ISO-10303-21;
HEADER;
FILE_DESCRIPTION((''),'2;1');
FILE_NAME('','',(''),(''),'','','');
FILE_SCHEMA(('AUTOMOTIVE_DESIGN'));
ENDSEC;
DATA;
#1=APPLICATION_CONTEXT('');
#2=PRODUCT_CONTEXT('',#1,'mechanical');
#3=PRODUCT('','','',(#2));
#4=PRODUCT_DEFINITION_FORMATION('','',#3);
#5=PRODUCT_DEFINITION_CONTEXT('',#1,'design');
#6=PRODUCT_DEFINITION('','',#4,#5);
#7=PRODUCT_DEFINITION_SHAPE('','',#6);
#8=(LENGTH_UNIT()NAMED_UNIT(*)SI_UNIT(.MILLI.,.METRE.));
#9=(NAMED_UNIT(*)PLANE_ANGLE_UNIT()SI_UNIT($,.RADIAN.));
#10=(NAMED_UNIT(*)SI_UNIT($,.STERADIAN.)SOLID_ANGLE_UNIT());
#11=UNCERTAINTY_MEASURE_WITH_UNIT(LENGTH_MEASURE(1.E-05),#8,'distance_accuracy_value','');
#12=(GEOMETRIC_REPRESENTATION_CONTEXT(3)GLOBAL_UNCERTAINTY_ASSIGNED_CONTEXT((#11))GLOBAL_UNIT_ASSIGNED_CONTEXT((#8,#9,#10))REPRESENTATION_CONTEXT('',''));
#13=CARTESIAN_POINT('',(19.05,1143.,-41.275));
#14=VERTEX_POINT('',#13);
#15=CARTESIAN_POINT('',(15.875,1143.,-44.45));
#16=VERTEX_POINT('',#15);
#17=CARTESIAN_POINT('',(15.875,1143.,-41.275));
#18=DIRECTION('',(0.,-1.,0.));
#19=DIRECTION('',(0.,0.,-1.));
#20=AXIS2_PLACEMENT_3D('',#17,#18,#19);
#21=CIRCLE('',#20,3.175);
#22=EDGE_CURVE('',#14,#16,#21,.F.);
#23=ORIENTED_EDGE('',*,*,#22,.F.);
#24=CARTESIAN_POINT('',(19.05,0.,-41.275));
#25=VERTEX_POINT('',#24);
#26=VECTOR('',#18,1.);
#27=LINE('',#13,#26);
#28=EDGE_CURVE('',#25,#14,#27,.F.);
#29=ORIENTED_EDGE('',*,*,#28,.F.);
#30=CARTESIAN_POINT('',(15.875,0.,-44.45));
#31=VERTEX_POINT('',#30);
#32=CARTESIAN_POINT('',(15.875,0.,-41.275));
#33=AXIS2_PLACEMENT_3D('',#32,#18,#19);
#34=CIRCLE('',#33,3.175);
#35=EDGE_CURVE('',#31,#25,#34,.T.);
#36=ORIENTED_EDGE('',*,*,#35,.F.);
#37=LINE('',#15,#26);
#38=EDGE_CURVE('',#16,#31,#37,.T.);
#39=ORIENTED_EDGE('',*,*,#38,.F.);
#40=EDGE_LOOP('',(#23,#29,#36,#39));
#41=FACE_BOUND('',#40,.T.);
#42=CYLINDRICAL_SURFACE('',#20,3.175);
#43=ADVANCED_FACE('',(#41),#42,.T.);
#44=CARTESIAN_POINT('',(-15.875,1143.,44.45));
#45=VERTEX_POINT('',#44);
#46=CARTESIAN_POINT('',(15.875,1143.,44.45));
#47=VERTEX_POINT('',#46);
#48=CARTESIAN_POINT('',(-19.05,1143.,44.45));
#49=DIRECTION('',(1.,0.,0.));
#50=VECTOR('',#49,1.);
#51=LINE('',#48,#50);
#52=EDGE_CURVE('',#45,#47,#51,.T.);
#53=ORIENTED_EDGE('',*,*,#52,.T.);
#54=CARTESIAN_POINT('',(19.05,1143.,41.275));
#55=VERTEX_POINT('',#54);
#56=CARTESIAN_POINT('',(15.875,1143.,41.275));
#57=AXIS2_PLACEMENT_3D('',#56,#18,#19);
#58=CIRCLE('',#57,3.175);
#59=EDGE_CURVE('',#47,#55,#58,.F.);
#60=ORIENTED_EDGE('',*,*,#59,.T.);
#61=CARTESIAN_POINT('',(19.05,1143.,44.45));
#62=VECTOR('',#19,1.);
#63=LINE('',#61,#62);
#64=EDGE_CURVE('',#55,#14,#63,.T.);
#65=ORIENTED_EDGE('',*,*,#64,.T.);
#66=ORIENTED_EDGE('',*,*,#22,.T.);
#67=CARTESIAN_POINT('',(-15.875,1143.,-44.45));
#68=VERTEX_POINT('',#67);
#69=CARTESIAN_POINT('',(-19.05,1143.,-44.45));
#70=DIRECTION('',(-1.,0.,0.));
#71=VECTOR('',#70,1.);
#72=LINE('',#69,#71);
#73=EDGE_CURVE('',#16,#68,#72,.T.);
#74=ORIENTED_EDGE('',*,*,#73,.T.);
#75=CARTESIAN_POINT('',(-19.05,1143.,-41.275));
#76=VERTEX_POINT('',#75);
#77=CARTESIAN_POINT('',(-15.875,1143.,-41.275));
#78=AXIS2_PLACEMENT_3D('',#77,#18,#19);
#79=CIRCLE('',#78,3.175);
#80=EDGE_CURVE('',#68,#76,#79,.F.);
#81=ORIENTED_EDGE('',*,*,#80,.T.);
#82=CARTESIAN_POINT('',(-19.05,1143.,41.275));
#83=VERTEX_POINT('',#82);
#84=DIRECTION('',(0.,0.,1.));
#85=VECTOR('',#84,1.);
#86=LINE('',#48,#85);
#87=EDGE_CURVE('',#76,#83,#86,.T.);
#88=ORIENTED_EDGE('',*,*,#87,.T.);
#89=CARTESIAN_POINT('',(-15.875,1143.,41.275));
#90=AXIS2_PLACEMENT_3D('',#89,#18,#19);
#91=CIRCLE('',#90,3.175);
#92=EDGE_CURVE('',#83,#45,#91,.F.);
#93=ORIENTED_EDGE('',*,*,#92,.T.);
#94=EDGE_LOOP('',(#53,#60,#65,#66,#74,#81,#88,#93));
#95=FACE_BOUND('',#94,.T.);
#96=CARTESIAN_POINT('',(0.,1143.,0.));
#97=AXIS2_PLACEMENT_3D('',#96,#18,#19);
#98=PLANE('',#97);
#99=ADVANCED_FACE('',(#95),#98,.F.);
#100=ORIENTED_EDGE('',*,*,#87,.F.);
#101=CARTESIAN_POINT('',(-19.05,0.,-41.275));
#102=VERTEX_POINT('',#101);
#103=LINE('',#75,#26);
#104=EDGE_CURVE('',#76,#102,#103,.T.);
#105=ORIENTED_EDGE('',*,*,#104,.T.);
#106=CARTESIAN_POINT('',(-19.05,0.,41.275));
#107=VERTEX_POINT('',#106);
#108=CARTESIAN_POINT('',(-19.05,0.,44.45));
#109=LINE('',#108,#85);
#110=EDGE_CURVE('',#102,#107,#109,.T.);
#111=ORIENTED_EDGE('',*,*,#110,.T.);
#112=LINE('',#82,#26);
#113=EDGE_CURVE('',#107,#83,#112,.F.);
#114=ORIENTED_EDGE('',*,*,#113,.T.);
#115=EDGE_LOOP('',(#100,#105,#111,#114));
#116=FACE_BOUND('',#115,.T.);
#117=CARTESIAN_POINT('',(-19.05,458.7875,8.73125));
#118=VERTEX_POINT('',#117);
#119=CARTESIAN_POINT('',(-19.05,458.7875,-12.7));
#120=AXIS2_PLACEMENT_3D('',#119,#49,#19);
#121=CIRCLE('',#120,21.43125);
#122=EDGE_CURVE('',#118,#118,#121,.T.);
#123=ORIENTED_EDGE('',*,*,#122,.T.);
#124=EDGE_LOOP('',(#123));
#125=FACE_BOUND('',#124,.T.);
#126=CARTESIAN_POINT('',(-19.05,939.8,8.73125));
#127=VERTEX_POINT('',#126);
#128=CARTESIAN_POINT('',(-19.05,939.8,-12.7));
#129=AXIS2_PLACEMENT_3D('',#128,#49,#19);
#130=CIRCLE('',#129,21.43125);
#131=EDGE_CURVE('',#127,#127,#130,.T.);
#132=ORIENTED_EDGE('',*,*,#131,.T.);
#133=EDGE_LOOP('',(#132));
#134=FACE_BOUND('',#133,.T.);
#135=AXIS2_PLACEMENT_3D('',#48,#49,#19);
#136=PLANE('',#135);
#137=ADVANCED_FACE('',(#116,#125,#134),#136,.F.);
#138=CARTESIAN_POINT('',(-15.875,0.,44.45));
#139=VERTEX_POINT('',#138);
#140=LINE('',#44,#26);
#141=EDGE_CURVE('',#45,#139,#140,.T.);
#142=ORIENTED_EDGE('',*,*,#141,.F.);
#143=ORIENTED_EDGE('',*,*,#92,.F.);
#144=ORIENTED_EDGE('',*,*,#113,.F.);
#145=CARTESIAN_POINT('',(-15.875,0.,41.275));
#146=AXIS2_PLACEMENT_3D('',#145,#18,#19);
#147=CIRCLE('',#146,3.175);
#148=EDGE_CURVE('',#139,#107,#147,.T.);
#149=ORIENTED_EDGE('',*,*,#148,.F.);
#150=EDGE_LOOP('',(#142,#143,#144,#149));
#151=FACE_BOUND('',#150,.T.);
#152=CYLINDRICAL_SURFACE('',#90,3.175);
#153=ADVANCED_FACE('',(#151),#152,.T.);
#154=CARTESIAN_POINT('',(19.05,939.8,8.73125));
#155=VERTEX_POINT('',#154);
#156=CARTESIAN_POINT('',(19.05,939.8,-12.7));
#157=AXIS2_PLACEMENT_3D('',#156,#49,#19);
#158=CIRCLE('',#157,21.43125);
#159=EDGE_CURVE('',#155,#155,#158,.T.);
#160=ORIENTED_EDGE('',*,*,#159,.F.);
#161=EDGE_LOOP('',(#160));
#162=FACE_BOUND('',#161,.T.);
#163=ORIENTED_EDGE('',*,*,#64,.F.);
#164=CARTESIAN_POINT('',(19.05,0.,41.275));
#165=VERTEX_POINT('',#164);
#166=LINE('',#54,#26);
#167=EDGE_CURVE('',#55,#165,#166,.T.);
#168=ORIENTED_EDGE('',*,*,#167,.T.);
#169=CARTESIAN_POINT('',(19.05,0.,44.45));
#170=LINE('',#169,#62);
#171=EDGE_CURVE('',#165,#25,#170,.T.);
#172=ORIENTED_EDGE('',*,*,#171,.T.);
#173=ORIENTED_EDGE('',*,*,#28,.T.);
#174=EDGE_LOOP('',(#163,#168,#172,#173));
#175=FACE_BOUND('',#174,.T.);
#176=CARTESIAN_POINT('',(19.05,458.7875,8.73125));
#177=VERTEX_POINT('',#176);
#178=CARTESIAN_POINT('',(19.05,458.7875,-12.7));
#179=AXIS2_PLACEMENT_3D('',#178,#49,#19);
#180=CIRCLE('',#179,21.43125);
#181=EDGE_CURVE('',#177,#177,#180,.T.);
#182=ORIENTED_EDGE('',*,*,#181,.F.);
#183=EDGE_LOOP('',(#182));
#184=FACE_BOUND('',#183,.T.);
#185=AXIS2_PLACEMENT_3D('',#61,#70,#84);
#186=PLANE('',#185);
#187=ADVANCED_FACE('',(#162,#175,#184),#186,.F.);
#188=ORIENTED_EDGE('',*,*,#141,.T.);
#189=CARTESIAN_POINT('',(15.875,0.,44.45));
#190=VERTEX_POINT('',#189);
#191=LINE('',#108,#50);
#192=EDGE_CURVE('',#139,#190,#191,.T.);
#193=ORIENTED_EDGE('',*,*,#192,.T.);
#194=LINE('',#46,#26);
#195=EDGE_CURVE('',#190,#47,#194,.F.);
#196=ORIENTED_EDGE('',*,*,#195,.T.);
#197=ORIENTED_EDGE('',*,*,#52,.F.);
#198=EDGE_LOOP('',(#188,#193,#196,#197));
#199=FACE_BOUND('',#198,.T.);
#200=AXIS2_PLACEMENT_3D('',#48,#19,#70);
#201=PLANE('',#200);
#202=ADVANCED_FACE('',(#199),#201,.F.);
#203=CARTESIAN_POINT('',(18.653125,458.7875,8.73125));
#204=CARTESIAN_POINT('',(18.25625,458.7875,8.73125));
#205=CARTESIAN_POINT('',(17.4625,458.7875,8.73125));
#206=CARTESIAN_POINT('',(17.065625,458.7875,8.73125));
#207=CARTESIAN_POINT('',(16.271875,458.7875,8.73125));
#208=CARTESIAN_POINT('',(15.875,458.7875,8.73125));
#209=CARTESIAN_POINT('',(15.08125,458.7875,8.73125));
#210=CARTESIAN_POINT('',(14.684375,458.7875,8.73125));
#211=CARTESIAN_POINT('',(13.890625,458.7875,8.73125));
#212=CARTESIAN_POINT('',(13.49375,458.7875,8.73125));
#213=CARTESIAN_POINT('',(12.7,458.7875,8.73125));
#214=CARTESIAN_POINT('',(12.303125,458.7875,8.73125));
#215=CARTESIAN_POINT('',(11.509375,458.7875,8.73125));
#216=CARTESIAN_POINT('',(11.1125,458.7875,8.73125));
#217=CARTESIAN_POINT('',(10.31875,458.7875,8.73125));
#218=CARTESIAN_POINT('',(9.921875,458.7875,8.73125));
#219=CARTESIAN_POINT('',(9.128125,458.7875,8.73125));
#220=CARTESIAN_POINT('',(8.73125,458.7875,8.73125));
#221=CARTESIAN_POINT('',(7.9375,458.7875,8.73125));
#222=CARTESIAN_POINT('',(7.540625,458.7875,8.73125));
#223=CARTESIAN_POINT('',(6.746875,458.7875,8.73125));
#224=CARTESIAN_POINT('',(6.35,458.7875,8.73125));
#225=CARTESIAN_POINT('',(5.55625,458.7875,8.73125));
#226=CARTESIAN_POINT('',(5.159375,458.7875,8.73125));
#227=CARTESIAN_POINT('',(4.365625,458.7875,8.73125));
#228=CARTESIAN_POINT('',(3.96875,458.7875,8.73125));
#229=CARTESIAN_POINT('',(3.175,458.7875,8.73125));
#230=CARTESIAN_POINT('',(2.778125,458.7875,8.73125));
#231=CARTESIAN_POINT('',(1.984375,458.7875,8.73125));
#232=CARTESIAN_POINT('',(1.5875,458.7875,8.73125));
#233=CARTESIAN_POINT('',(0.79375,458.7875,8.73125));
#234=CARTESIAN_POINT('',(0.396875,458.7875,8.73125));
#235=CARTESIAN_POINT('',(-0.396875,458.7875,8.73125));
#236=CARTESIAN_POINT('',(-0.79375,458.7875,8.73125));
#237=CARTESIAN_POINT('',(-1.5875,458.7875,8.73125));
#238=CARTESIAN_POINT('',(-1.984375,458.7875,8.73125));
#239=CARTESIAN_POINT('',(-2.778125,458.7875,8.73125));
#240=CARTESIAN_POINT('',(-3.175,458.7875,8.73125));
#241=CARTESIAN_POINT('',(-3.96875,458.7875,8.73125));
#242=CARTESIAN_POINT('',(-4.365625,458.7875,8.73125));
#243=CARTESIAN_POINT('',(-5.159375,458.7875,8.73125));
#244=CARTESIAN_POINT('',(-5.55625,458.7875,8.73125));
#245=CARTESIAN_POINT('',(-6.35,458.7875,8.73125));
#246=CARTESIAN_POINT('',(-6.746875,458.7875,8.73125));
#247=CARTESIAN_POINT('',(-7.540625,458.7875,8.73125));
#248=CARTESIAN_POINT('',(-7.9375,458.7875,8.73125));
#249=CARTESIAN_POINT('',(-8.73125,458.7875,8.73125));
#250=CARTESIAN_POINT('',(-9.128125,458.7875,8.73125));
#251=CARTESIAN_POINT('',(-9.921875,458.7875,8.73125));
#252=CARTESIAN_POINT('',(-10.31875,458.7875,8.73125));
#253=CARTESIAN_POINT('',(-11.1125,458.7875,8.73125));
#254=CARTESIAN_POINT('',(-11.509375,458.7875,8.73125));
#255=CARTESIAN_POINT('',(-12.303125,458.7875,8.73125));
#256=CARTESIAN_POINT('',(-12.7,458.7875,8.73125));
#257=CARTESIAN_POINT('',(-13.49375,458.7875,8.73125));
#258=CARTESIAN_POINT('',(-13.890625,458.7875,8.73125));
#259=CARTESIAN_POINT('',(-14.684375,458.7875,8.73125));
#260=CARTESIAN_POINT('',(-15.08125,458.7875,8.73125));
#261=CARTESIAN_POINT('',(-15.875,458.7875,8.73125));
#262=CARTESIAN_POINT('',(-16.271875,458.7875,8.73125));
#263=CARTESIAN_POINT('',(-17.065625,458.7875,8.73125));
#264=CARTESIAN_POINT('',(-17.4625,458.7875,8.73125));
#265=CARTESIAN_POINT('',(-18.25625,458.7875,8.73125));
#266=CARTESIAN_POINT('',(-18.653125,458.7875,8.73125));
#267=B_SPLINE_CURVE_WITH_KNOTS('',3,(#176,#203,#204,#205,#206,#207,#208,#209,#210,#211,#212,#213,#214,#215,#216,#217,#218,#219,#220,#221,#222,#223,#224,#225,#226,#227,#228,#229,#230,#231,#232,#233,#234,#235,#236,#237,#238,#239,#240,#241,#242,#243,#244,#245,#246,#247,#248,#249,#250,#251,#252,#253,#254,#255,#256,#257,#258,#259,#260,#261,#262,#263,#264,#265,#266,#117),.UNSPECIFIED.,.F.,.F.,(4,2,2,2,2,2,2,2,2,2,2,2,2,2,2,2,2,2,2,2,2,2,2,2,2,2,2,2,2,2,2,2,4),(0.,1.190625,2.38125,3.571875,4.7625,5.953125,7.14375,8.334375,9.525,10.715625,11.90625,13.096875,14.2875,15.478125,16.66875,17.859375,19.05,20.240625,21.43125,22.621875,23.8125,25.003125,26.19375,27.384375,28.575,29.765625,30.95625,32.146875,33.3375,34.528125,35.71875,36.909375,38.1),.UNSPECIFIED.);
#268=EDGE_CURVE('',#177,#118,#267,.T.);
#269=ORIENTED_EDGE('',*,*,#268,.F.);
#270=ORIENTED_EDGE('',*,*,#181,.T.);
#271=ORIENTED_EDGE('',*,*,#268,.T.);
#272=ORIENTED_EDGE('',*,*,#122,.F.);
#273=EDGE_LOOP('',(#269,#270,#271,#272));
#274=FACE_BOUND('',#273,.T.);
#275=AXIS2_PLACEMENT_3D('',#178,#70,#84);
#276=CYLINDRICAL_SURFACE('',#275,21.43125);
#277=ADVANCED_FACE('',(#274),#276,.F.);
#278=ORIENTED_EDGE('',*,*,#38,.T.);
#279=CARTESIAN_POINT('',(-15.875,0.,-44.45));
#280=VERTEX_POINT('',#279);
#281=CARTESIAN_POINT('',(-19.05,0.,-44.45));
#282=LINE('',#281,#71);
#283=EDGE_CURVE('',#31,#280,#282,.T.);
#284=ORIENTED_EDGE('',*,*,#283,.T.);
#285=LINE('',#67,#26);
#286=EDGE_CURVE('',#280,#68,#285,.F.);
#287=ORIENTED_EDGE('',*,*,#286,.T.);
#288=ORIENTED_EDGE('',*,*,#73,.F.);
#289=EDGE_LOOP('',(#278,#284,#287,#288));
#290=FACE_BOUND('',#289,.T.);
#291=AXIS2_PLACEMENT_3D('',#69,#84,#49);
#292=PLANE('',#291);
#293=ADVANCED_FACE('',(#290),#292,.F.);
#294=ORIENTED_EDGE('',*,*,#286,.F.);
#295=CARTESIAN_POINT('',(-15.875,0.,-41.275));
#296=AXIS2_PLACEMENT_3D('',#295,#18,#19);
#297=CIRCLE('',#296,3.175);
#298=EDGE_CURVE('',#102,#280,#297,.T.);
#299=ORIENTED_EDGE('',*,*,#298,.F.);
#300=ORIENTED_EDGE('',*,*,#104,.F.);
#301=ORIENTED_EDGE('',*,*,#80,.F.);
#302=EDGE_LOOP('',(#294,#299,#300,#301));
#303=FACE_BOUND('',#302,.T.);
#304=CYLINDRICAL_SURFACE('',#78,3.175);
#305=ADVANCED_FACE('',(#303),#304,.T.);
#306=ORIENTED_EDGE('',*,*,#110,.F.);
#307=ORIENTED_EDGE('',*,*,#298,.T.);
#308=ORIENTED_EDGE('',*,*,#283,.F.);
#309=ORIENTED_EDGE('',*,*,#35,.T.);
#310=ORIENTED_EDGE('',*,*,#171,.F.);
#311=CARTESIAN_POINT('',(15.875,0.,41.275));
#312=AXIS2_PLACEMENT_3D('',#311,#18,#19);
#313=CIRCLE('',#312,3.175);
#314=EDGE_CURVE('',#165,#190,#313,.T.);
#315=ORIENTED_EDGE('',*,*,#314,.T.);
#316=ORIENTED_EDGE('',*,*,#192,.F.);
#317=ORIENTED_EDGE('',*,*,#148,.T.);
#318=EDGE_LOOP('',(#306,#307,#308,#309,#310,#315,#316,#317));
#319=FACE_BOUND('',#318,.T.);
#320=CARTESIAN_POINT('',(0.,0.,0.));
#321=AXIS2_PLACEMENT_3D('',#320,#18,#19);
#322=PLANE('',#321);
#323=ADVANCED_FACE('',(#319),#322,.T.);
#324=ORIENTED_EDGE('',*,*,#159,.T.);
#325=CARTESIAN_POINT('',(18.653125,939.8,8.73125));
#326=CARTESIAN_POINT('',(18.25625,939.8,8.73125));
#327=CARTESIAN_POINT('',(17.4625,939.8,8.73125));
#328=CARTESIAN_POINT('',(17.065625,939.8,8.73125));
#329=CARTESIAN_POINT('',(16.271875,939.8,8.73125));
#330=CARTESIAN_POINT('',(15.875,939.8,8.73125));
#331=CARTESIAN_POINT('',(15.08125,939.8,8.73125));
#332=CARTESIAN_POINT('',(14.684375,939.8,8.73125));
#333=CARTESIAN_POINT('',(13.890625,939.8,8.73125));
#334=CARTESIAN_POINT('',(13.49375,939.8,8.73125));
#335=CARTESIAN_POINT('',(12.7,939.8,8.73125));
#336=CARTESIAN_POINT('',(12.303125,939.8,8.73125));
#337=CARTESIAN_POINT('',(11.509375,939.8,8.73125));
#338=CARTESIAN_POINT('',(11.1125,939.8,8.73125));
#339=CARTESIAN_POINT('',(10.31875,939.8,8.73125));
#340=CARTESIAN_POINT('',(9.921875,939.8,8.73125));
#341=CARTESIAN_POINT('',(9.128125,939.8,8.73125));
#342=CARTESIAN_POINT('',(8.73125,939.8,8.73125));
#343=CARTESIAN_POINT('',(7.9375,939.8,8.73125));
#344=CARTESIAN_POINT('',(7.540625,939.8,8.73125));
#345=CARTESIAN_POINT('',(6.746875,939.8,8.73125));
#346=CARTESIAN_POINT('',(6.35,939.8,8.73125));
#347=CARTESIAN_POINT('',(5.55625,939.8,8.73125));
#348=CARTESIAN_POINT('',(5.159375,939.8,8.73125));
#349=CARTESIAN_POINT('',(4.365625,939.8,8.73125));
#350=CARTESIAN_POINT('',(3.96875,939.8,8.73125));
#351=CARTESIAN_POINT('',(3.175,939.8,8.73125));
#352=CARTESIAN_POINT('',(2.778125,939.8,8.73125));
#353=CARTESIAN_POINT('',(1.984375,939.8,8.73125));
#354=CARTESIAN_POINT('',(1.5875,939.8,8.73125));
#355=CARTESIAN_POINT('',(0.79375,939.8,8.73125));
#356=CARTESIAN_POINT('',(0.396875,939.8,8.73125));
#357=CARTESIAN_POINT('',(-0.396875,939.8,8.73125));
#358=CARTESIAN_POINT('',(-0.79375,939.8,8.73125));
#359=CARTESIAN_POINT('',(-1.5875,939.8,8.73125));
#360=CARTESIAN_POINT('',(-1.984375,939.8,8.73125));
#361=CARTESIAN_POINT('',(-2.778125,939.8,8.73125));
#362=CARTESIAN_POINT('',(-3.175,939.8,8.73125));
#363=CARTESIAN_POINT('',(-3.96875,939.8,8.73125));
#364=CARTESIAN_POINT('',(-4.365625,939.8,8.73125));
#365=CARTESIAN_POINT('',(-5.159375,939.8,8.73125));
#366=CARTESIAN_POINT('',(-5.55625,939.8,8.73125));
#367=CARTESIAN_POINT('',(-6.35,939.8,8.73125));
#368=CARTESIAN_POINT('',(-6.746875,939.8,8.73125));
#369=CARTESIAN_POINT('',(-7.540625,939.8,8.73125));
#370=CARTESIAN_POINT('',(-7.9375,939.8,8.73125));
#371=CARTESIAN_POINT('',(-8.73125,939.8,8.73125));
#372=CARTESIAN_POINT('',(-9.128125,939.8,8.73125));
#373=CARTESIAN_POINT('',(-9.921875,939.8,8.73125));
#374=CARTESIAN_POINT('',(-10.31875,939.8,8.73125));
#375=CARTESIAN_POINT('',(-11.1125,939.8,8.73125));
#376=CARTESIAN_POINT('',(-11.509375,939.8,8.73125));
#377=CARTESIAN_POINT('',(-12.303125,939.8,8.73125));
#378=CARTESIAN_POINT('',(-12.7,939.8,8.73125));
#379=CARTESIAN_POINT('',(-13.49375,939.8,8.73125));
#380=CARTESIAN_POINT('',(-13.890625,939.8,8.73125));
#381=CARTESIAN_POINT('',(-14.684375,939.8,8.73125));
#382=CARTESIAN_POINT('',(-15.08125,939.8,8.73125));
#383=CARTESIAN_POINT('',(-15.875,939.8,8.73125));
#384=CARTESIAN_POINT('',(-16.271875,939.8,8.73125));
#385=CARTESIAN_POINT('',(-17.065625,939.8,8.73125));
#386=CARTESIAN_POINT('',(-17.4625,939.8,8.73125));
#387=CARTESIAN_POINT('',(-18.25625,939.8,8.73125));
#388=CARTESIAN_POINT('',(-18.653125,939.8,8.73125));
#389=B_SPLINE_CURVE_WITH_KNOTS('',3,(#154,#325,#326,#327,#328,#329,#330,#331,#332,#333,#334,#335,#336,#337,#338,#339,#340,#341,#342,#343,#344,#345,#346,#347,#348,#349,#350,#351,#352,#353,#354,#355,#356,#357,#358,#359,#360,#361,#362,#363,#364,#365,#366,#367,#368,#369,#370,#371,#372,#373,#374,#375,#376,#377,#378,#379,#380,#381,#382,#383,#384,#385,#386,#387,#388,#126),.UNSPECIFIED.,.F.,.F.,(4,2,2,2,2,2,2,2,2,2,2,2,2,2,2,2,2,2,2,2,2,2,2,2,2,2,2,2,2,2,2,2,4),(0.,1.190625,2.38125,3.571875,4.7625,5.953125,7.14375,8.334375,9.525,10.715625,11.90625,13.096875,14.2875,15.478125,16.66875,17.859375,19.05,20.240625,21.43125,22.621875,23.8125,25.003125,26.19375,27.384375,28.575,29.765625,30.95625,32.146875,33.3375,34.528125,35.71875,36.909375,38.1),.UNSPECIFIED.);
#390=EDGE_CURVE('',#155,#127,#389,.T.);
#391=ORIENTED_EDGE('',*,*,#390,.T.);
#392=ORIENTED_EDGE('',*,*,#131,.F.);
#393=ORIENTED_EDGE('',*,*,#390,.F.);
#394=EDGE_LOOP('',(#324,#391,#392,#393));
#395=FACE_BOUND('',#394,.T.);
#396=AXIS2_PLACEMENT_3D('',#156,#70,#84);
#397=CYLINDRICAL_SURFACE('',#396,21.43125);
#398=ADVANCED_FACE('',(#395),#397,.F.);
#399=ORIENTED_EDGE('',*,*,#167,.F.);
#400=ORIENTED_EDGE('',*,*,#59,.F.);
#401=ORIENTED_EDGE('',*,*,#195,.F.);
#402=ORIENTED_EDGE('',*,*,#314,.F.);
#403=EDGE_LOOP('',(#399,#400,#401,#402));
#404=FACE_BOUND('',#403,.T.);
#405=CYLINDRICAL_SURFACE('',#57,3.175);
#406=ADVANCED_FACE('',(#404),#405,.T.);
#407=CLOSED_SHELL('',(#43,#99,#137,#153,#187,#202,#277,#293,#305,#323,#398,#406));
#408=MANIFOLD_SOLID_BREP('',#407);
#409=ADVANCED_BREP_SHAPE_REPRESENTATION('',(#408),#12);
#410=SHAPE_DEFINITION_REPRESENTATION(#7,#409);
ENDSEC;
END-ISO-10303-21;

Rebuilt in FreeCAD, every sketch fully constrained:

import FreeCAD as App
import Part
import Sketcher
from FreeCAD import Vector
Q = App.Units.Quantity


def edges_at(feature, points):
    """Names of the edges that pass closest to the given points."""
    edges = feature.Shape.Edges
    near = lambda p: min(range(len(edges)), key=lambda i: edges[i].distToShape(Part.Vertex(*p))[0])
    return sorted({f"Edge{near(p) + 1}" for p in points})

doc = App.newDocument("Part")
body = doc.addObject("PartDesign::Body", "Body")

# Sketch on XZ plane
sketch1 = body.newObject("Sketcher::SketchObject", "Sketch")
sketch1.AttachmentSupport = (doc.getObject("XZ_Plane"), [""])
sketch1.MapMode = "FlatFace"
sketch1.addGeometry(Part.LineSegment(Vector(-19, -44, 0), Vector(-19, 44, 0)), False)
sketch1.addGeometry(Part.LineSegment(Vector(-19, 44, 0), Vector(19, 44, 0)), False)
sketch1.addGeometry(Part.LineSegment(Vector(19, 44, 0), Vector(19, -44, 0)), False)
sketch1.addGeometry(Part.LineSegment(Vector(19, -44, 0), Vector(-19, -44, 0)), False)
sketch1.addConstraint(Sketcher.Constraint("Coincident", 0, 2, 1, 1))
sketch1.addConstraint(Sketcher.Constraint("Coincident", 1, 2, 2, 1))
sketch1.addConstraint(Sketcher.Constraint("Coincident", 2, 2, 3, 1))
sketch1.addConstraint(Sketcher.Constraint("Coincident", 3, 2, 0, 1))
sketch1.addConstraint(Sketcher.Constraint("Vertical", 0))
sketch1.addConstraint(Sketcher.Constraint("Horizontal", 1))
sketch1.addConstraint(Sketcher.Constraint("Vertical", 2))
sketch1.addConstraint(Sketcher.Constraint("Horizontal", 3))
sketch1.addConstraint(Sketcher.Constraint("Symmetric", 0, 2, 2, 2, -1, 1))
sketch1.addConstraint(Sketcher.Constraint("DistanceX", 1, 1, 1, 2, Q("1.5 in")))
sketch1.addConstraint(Sketcher.Constraint("DistanceY", 0, 1, 0, 2, Q("3.5 in")))
pad1 = body.newObject("PartDesign::Pad", "Pad")
pad1.Profile = sketch1
pad1.Length = Q("45 in")
pad1.Reversed = True

# Sketch on YZ plane
sketch2 = body.newObject("Sketcher::SketchObject", "Sketch001")
sketch2.AttachmentSupport = (doc.getObject("YZ_Plane"), [""])
sketch2.MapMode = "FlatFace"
sketch2.AttachmentOffset = App.Placement(Vector(0, 0, -0.75 * 25.4), App.Rotation())
sketch2.addGeometry(Part.Circle(Vector(459, -13, 0), Vector(0, 0, 1), 21), False)
sketch2.addGeometry(Part.Circle(Vector(940, -13, 0), Vector(0, 0, 1), 21), False)
sketch2.addConstraint(Sketcher.Constraint("Equal", 0, 1))
sketch2.addConstraint(Sketcher.Constraint("Horizontal", 0, 3, 1, 3))
sketch2.addConstraint(Sketcher.Constraint("Diameter", 0, Q("1.6875 in")))
sketch2.addConstraint(Sketcher.Constraint("DistanceX", -1, 1, 1, 3, Q("37 in")))
sketch2.addConstraint(Sketcher.Constraint("DistanceY", 0, 3, -1, 1, Q("0.5 in")))
sketch2.addConstraint(Sketcher.Constraint("DistanceX", -1, 1, 0, 3, Q("18.0625 in")))
pocket1 = body.newObject("PartDesign::Pocket", "Pocket")
pocket1.Profile = sketch2
pocket1.Type = "ThroughAll"
pocket1.Reversed = True
doc.recompute()

fillet = body.newObject("PartDesign::Fillet", "Fillet")
fillet.Base = (pocket1, edges_at(pocket1, [
    (19.05, 571.5, 44.45),
    (-19.05, 571.5, 44.45),
    (-19.05, 571.5, -44.45),
    (19.05, 571.5, -44.45),
]))
fillet.Radius = Q("0.125 in")

doc.recompute()
